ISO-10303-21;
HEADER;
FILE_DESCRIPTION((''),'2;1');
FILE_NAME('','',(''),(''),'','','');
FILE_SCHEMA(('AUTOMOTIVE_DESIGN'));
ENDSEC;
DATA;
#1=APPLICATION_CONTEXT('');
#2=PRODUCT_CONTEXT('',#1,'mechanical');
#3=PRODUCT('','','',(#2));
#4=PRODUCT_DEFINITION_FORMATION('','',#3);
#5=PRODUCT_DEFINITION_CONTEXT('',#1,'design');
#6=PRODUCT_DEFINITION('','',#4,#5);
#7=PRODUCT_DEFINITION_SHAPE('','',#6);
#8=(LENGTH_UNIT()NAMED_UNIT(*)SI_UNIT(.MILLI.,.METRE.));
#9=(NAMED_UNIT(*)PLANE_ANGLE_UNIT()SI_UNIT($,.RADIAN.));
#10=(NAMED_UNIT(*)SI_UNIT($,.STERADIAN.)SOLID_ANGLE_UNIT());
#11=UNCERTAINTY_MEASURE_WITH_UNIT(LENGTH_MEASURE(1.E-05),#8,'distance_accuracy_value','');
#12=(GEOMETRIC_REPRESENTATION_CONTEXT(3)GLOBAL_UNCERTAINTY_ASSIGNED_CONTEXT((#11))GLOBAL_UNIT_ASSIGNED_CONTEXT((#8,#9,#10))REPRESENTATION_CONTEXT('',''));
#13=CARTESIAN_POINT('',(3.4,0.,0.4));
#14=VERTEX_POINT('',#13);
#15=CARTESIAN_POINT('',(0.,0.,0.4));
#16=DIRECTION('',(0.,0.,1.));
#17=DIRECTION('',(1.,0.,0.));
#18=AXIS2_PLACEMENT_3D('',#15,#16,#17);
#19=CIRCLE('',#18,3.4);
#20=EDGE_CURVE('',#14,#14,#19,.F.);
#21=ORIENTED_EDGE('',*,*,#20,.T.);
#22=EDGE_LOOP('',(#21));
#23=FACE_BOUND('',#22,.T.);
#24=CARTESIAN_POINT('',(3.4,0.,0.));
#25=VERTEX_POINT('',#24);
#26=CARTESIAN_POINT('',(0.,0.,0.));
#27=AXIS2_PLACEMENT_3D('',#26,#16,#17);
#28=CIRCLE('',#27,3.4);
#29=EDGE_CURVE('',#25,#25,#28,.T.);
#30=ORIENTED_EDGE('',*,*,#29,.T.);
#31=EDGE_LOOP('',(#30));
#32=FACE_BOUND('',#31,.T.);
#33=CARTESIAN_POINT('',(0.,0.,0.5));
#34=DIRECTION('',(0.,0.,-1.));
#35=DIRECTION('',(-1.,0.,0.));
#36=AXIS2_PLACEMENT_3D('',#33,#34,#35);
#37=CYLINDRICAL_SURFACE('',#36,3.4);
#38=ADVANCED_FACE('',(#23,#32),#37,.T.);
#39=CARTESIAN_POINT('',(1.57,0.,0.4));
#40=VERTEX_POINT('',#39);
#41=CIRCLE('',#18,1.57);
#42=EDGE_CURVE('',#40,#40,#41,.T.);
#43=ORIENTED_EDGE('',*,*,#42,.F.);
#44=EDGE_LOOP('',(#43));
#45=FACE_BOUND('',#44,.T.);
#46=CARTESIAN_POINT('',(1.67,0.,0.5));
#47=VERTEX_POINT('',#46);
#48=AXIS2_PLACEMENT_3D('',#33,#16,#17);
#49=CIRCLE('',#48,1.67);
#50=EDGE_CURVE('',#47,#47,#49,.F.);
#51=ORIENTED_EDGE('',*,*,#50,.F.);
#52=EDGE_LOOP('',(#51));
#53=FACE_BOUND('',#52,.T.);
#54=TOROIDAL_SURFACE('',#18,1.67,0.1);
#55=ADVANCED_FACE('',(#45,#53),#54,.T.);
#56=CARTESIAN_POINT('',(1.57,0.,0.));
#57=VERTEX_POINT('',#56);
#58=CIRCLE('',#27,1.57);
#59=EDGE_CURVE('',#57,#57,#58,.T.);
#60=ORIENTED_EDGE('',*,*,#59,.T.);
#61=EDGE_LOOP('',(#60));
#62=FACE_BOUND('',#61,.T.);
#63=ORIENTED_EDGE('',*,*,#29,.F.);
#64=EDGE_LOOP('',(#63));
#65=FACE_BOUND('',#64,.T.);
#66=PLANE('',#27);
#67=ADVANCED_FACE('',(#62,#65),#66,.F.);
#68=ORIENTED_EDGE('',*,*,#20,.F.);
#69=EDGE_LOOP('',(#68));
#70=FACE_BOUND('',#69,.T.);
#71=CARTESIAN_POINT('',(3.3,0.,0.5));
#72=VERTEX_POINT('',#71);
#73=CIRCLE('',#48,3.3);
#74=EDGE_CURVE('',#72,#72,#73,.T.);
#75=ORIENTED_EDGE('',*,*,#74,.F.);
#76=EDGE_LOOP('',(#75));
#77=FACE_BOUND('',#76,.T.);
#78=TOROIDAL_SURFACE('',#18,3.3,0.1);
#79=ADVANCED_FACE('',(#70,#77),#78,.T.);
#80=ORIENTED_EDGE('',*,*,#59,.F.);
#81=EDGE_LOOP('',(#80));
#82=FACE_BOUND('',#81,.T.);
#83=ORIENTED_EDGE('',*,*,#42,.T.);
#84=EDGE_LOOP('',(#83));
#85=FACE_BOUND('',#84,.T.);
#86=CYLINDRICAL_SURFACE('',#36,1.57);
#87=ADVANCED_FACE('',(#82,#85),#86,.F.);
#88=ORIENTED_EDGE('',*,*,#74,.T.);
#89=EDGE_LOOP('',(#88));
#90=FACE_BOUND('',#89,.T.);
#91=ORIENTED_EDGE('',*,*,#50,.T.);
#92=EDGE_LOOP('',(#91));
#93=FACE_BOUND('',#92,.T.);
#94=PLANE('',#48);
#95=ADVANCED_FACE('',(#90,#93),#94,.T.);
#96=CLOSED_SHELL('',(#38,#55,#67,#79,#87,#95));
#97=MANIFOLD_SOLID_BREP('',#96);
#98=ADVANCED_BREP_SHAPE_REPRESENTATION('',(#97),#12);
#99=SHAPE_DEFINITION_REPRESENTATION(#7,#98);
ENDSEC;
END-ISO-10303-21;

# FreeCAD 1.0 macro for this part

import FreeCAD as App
import Part
import Sketcher
from FreeCAD import Vector
Q = App.Units.Quantity


def edges_at(feature, points):
    """Names of the edges that pass closest to the given points."""
    edges = feature.Shape.Edges
    near = lambda p: min(range(len(edges)), key=lambda i: edges[i].distToShape(Part.Vertex(*p))[0])
    return sorted({f"Edge{near(p) + 1}" for p in points})

doc = App.newDocument("Part")
body = doc.addObject("PartDesign::Body", "Body")

sketch1 = body.newObject("Sketcher::SketchObject", "Sketch")
sketch1.AttachmentSupport = (doc.getObject("XY_Plane"), [""])
sketch1.MapMode = "FlatFace"
sketch1.addGeometry([
    Part.Circle(Vector(0, 0, 0), Vector(0, 0, 1), 3.4),
    Part.Circle(Vector(0, 0, 0), Vector(0, 0, 1), 1.57),
], False)
sketch1.addConstraint([
    Sketcher.Constraint("Coincident", 0, 3, -1, 1),
    Sketcher.Constraint("Coincident", 1, 3, -1, 1),
    Sketcher.Constraint("Diameter", 0, Q("6.8 mm")),
    Sketcher.Constraint("Diameter", 1, Q("3.14 mm")),
])
pad1 = body.newObject("PartDesign::Pad", "Pad")
pad1.Profile = sketch1
pad1.Length = 0.5
doc.recompute()

fillet = body.newObject("PartDesign::Fillet", "Fillet")
fillet.Base = (pad1, edges_at(pad1, [(-3.4, 0, 0.5), (-1.57, 0, 0.5)]))
fillet.Radius = 0.1

doc.recompute()
